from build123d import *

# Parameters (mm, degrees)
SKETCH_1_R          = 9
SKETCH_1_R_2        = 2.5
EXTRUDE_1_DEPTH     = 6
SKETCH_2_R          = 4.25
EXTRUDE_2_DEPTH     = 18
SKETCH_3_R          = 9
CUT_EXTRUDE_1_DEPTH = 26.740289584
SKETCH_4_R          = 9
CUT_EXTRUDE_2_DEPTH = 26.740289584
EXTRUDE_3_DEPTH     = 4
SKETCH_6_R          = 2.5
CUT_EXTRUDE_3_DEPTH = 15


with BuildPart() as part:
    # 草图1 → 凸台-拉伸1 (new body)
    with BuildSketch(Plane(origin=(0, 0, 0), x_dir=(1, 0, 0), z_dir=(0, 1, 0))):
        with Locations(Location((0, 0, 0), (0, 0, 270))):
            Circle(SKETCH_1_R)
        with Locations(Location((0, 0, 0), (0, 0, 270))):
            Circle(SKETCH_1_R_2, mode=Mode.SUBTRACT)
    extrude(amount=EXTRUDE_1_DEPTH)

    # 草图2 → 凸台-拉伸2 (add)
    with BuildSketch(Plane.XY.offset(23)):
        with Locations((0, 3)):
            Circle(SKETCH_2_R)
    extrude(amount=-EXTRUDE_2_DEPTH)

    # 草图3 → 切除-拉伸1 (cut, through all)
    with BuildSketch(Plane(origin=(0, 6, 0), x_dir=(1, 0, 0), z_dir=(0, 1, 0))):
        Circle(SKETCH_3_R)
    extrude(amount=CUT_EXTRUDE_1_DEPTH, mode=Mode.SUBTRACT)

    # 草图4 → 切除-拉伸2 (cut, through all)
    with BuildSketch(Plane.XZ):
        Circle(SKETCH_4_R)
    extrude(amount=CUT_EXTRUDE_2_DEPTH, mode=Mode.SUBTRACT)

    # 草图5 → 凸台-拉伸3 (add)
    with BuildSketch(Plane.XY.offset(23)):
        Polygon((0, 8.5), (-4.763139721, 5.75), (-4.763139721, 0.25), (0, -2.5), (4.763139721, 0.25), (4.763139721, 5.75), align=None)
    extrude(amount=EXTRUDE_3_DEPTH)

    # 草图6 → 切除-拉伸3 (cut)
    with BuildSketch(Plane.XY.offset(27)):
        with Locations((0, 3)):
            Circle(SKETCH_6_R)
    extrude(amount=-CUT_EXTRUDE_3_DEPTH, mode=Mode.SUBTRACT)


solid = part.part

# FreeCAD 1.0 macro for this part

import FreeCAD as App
import Part
import Sketcher

V = App.Vector
Q = App.Units.Quantity

doc = App.newDocument("Part")
body = doc.addObject("PartDesign::Body", "Body")

# Sketch on XZ plane
sketch1 = doc.addObject("Sketcher::SketchObject", "Sketch")
body.addObject(sketch1)
sketch1.AttachmentSupport = (doc.XZ_Plane, [""])
sketch1.MapMode = "FlatFace"
sketch1.addGeometry(Part.Circle(V(0, 0, 0), V(0, 0, 1), 9), False)
sketch1.addGeometry(Part.Circle(V(0, 0, 0), V(0, 0, 1), 2.5), False)
sketch1.addConstraint(Sketcher.Constraint("Coincident", 0, 3, -1, 1))
sketch1.addConstraint(Sketcher.Constraint("Coincident", 1, 3, -1, 1))
sketch1.addConstraint(Sketcher.Constraint("Diameter", 0, 18.0))
sketch1.addConstraint(Sketcher.Constraint("Diameter", 1, 5.0))
pad1 = doc.addObject("PartDesign::Pad", "Pad")
body.addObject(pad1)
pad1.Profile = sketch1
pad1.Length = 6
pad1.Reversed = True

# Sketch on XY plane
sketch2 = doc.addObject("Sketcher::SketchObject", "Sketch001")
body.addObject(sketch2)
sketch2.AttachmentSupport = (doc.XY_Plane, [""])
sketch2.MapMode = "FlatFace"
sketch2.AttachmentOffset = App.Placement(V(0, 0, 23), App.Rotation())
sketch2.addGeometry(Part.Circle(V(0, 3, 0), V(0, 0, 1), 4.25), False)
sketch2.addConstraint(Sketcher.Constraint("PointOnObject", 0, 3, -2))
sketch2.addConstraint(Sketcher.Constraint("Diameter", 0, 8.5))
sketch2.addConstraint(Sketcher.Constraint("DistanceY", -1, 1, 0, 3, 3.0))
pad2 = doc.addObject("PartDesign::Pad", "Pad001")
body.addObject(pad2)
pad2.Profile = sketch2
pad2.Length = 18
pad2.Reversed = True

# Sketch on XZ plane
sketch3 = doc.addObject("Sketcher::SketchObject", "Sketch002")
body.addObject(sketch3)
sketch3.AttachmentSupport = (doc.XZ_Plane, [""])
sketch3.MapMode = "FlatFace"
sketch3.AttachmentOffset = App.Placement(V(0, 0, -6), App.Rotation())
sketch3.addGeometry(Part.Circle(V(0, 0, 0), V(0, 0, 1), 9), False)
sketch3.addConstraint(Sketcher.Constraint("Coincident", 0, 3, -1, 1))
sketch3.addConstraint(Sketcher.Constraint("Diameter", 0, 18.0))
pocket1 = doc.addObject("PartDesign::Pocket", "Pocket")
body.addObject(pocket1)
pocket1.Profile = sketch3
pocket1.Type = "ThroughAll"

# Sketch on XZ plane
sketch4 = doc.addObject("Sketcher::SketchObject", "Sketch003")
body.addObject(sketch4)
sketch4.AttachmentSupport = (doc.XZ_Plane, [""])
sketch4.MapMode = "FlatFace"
sketch4.addGeometry(Part.Circle(V(0, 0, 0), V(0, 0, 1), 9), False)
sketch4.addConstraint(Sketcher.Constraint("Coincident", 0, 3, -1, 1))
sketch4.addConstraint(Sketcher.Constraint("Diameter", 0, 18.0))
pocket2 = doc.addObject("PartDesign::Pocket", "Pocket001")
body.addObject(pocket2)
pocket2.Profile = sketch4
pocket2.Type = "ThroughAll"
pocket2.Reversed = True

# Sketch on XY plane
sketch5 = doc.addObject("Sketcher::SketchObject", "Sketch004")
body.addObject(sketch5)
sketch5.AttachmentSupport = (doc.XY_Plane, [""])
sketch5.MapMode = "FlatFace"
sketch5.AttachmentOffset = App.Placement(V(0, 0, 23), App.Rotation())
sketch5.addGeometry(Part.LineSegment(V(0, 8.5, 0), V(-4.76314, 5.75, 0)), False)
sketch5.addGeometry(Part.LineSegment(V(-4.76314, 5.75, 0), V(-4.76314, 0.25, 0)), False)
sketch5.addGeometry(Part.LineSegment(V(-4.76314, 0.25, 0), V(0, -2.5, 0)), False)
sketch5.addGeometry(Part.LineSegment(V(0, -2.5, 0), V(4.76314, 0.25, 0)), False)
sketch5.addGeometry(Part.LineSegment(V(4.76314, 0.25, 0), V(4.76314, 5.75, 0)), False)
sketch5.addGeometry(Part.LineSegment(V(4.76314, 5.75, 0), V(0, 8.5, 0)), False)
sketch5.addConstraint(Sketcher.Constraint("Coincident", 0, 2, 1, 1))
sketch5.addConstraint(Sketcher.Constraint("Coincident", 1, 2, 2, 1))
sketch5.addConstraint(Sketcher.Constraint("Coincident", 2, 2, 3, 1))
sketch5.addConstraint(Sketcher.Constraint("Coincident", 3, 2, 4, 1))
sketch5.addConstraint(Sketcher.Constraint("Coincident", 4, 2, 5, 1))
sketch5.addConstraint(Sketcher.Constraint("Coincident", 5, 2, 0, 1))
sketch5.addConstraint(Sketcher.Constraint("Vertical", 1))
sketch5.addConstraint(Sketcher.Constraint("Vertical", 4))
sketch5.addConstraint(Sketcher.Constraint("Symmetric", 1, 2, 3, 2, -2))
sketch5.addConstraint(Sketcher.Constraint("PointOnObject", 2, 2, -2))
sketch5.addConstraint(Sketcher.Constraint("PointOnObject", 5, 2, -2))
sketch5.addConstraint(Sketcher.Constraint("Parallel", 0, 3))
sketch5.addConstraint(Sketcher.Constraint("Parallel", 2, 5))
sketch5.addConstraint(Sketcher.Constraint("Angle", 0, Q("-150 deg")))
sketch5.addConstraint(Sketcher.Constraint("DistanceY", 1, 2, 1, 1, 5.5))
sketch5.addConstraint(Sketcher.Constraint("DistanceY", 2, 2, 5, 2, 11.0))
sketch5.addConstraint(Sketcher.Constraint("DistanceY", 2, 2, -1, 1, 2.5))
pad3 = doc.addObject("PartDesign::Pad", "Pad002")
body.addObject(pad3)
pad3.Profile = sketch5
pad3.Length = 4

# Sketch on XY plane
sketch6 = doc.addObject("Sketcher::SketchObject", "Sketch005")
body.addObject(sketch6)
sketch6.AttachmentSupport = (doc.XY_Plane, [""])
sketch6.MapMode = "FlatFace"
sketch6.AttachmentOffset = App.Placement(V(0, 0, 27), App.Rotation())
sketch6.addGeometry(Part.Circle(V(0, 3, 0), V(0, 0, 1), 2.5), False)
sketch6.addConstraint(Sketcher.Constraint("PointOnObject", 0, 3, -2))
sketch6.addConstraint(Sketcher.Constraint("Diameter", 0, 5.0))
sketch6.addConstraint(Sketcher.Constraint("DistanceY", -1, 1, 0, 3, 3.0))
pocket3 = doc.addObject("PartDesign::Pocket", "Pocket002")
body.addObject(pocket3)
pocket3.Profile = sketch6
pocket3.Length = 15

doc.recompute()
